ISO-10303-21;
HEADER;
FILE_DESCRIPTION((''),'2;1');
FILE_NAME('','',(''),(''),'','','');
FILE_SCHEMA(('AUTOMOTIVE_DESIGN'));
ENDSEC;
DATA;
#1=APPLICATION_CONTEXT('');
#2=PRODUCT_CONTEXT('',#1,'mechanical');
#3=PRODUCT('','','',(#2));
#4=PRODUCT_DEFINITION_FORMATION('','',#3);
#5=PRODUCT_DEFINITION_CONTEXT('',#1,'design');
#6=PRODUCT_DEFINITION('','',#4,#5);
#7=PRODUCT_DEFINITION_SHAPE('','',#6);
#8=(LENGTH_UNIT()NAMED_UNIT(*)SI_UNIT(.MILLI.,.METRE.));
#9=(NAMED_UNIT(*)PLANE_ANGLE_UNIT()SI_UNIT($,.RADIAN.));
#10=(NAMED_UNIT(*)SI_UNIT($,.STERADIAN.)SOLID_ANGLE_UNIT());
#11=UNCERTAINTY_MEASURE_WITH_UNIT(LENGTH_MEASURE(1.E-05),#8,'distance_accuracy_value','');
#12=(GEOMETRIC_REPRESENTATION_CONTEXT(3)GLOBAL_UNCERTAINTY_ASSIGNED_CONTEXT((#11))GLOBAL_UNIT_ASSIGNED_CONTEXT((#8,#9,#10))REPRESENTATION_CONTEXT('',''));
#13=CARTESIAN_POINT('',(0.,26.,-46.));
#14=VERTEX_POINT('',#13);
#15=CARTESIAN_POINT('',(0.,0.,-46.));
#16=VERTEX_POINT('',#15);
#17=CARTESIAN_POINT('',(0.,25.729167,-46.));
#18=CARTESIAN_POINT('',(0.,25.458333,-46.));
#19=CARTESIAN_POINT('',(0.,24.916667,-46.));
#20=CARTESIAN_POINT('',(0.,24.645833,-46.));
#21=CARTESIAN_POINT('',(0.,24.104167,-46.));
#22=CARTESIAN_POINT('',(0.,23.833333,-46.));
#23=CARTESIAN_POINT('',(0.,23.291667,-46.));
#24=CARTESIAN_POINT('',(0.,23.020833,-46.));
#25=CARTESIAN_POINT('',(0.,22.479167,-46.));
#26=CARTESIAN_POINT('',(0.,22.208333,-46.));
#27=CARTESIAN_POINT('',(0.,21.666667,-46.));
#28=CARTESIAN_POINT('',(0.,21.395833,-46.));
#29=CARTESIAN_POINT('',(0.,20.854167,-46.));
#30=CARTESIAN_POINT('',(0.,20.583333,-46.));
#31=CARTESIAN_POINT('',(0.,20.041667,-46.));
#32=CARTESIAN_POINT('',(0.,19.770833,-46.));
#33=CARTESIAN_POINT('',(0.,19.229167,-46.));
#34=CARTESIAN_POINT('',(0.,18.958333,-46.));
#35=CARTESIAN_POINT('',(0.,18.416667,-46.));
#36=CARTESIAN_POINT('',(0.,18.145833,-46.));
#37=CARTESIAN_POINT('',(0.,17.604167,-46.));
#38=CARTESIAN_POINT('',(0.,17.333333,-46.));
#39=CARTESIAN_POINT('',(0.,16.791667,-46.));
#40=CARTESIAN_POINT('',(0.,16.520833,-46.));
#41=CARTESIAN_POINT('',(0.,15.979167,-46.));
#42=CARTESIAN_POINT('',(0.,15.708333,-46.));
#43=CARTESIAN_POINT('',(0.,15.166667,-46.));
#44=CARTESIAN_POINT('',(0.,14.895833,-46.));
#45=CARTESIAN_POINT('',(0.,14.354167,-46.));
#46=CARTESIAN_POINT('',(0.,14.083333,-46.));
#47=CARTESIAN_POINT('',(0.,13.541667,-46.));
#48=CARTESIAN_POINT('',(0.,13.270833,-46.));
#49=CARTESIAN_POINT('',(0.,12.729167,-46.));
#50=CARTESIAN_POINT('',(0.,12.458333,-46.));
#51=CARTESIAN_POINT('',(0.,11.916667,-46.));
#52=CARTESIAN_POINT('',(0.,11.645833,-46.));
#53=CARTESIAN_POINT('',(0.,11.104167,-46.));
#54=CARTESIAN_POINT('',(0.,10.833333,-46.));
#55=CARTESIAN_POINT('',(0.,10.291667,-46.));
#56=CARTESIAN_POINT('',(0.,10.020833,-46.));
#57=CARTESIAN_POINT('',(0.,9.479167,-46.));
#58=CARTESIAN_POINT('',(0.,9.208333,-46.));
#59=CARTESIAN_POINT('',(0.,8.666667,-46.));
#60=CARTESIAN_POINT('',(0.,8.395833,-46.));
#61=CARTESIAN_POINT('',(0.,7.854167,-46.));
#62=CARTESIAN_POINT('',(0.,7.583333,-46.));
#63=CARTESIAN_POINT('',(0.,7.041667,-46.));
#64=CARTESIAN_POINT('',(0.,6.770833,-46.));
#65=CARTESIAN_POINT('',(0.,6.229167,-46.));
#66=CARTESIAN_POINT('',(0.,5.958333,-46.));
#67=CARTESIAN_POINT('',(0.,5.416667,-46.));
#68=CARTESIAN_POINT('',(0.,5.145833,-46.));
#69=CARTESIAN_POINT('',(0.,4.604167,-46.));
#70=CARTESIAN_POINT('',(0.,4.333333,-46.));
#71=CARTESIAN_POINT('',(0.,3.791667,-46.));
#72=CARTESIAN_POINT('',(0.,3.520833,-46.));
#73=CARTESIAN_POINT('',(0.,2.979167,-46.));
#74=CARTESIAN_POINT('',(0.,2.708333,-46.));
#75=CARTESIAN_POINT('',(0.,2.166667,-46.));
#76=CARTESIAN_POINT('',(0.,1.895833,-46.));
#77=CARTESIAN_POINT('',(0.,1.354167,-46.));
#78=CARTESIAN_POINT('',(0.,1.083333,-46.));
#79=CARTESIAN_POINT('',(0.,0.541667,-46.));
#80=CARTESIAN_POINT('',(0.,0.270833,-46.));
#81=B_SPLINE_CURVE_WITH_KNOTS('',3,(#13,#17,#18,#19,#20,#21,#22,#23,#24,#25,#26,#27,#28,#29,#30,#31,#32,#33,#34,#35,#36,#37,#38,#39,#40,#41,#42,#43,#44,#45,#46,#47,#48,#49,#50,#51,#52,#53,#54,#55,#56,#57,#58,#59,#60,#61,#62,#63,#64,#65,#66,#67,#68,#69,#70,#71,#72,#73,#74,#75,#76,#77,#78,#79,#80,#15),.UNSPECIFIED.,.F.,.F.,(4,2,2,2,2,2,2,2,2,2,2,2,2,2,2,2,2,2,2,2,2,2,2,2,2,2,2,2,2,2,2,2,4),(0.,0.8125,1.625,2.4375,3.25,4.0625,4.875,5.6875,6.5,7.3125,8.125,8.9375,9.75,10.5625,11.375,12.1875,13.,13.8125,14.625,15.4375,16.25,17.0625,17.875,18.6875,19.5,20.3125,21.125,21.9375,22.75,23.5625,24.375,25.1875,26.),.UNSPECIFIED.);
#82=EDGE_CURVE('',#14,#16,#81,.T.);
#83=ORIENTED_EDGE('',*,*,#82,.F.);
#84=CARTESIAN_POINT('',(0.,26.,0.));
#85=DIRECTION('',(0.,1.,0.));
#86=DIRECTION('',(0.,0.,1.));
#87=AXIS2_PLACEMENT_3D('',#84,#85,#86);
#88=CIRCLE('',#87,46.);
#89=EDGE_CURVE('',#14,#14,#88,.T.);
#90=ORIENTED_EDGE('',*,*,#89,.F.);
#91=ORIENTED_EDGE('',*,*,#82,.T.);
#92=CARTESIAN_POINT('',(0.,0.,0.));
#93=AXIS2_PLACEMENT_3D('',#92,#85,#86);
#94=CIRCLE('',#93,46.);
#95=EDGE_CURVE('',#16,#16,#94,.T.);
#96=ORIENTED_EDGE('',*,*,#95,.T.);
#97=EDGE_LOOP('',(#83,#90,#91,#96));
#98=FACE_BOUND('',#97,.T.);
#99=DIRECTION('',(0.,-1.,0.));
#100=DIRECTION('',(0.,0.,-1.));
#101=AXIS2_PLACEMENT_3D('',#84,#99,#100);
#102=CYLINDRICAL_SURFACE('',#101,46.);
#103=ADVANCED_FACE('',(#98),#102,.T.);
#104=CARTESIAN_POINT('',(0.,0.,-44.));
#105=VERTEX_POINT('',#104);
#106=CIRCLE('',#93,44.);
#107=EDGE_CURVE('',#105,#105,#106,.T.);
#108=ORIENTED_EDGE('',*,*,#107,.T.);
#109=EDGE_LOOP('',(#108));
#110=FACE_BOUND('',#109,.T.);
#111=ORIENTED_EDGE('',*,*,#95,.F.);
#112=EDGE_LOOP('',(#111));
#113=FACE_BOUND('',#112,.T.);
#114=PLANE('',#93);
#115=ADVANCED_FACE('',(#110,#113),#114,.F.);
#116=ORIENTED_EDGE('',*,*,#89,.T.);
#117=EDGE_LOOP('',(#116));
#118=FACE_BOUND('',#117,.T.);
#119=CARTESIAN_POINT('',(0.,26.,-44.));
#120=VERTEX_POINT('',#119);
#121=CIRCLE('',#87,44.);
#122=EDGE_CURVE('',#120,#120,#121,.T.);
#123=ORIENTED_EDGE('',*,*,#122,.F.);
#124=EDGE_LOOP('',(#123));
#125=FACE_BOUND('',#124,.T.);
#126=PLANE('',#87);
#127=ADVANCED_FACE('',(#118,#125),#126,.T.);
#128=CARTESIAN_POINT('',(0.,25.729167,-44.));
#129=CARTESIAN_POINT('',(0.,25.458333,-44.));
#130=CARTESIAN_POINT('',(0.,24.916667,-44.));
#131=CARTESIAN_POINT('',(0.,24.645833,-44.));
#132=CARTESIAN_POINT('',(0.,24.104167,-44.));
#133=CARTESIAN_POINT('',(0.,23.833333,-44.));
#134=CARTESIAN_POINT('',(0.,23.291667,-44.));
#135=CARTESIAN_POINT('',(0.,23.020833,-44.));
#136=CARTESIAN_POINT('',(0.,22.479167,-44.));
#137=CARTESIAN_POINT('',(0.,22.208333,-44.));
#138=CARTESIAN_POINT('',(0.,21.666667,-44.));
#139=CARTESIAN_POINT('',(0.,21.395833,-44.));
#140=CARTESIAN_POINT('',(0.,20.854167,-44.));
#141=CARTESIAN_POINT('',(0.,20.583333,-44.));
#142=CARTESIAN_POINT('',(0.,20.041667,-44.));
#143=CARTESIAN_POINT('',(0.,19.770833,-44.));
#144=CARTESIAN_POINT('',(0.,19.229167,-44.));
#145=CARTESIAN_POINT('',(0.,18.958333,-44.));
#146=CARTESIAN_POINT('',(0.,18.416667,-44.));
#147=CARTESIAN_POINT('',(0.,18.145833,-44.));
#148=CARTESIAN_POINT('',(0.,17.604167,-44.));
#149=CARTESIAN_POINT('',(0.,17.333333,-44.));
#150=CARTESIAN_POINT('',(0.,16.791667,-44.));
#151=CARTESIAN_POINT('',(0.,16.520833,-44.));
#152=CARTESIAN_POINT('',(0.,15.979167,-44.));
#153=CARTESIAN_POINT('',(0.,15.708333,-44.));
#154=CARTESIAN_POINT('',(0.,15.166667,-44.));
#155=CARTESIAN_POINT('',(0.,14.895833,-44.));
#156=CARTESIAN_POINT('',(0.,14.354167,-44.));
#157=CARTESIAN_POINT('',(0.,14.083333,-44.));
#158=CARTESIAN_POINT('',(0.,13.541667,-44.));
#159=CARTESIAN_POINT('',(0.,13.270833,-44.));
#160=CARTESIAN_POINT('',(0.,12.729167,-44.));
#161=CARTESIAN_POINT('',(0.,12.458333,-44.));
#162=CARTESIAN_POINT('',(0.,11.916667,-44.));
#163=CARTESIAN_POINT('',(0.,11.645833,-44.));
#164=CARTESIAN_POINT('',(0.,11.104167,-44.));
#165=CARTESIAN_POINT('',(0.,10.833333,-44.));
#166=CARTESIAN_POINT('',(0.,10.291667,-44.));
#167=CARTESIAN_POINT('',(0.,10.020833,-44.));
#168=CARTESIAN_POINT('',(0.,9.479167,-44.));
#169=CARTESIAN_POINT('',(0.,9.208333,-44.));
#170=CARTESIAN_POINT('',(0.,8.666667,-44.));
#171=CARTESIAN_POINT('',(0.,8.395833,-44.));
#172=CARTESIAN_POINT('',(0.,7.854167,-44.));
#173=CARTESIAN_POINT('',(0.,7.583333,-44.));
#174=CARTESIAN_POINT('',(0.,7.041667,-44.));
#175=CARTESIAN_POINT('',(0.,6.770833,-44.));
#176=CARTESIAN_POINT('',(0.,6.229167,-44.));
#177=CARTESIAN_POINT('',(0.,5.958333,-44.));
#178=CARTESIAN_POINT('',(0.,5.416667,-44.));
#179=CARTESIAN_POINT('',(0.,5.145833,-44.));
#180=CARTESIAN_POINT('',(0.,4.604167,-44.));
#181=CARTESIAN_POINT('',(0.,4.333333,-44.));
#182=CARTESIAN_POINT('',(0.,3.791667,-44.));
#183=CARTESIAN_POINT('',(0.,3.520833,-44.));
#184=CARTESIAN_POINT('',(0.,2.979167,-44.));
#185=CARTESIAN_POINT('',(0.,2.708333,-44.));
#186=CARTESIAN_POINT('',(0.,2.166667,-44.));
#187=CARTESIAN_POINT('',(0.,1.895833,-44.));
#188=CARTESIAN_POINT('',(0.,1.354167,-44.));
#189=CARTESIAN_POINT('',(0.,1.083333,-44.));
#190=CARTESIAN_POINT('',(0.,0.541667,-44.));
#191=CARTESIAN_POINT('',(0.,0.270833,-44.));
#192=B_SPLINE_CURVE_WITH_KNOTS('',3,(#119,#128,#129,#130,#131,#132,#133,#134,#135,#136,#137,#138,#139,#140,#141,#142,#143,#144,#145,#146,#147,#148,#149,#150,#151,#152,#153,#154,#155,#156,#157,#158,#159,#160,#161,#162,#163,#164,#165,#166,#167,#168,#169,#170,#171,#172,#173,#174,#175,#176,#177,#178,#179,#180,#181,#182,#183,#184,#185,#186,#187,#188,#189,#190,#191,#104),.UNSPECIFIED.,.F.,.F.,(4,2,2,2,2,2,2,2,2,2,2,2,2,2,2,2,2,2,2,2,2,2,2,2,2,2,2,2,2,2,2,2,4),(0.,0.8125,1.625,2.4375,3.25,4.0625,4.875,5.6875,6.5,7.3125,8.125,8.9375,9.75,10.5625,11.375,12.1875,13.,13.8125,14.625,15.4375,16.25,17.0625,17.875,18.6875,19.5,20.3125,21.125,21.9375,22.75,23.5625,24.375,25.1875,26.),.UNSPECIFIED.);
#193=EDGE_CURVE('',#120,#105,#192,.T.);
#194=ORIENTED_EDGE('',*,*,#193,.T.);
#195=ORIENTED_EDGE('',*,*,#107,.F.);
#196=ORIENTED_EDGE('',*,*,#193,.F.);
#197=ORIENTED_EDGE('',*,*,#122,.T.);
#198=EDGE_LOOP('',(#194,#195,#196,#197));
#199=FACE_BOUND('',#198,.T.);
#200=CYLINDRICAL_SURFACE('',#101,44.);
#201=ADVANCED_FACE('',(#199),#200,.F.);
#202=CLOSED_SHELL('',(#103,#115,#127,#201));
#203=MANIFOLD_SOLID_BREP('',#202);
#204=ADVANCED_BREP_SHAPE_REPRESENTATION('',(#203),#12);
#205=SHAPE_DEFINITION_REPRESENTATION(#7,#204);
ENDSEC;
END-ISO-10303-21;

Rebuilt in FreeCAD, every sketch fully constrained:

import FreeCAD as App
import Part
import Sketcher
from FreeCAD import Vector
Q = App.Units.Quantity

doc = App.newDocument("Part")
body = doc.addObject("PartDesign::Body", "Body")

# Sketch on XZ plane
sketch1 = body.newObject("Sketcher::SketchObject", "Sketch")
sketch1.AttachmentSupport = (doc.getObject("XZ_Plane"), [""])
sketch1.MapMode = "FlatFace"
sketch1.addGeometry(Part.Circle(Vector(0, 0, 0), Vector(0, 0, 1), 46), False)
sketch1.addGeometry(Part.Circle(Vector(0, 0, 0), Vector(0, 0, 1), 44), False)
sketch1.addConstraint(Sketcher.Constraint("Coincident", 0, 3, -1, 1))
sketch1.addConstraint(Sketcher.Constraint("Coincident", 1, 3, -1, 1))
sketch1.addConstraint(Sketcher.Constraint("Diameter", 0, Q("92 mm")))
sketch1.addConstraint(Sketcher.Constraint("Diameter", 1, Q("88 mm")))
pad1 = body.newObject("PartDesign::Pad", "Pad")
pad1.Profile = sketch1
pad1.Length = 26
pad1.Reversed = True

doc.recompute()
